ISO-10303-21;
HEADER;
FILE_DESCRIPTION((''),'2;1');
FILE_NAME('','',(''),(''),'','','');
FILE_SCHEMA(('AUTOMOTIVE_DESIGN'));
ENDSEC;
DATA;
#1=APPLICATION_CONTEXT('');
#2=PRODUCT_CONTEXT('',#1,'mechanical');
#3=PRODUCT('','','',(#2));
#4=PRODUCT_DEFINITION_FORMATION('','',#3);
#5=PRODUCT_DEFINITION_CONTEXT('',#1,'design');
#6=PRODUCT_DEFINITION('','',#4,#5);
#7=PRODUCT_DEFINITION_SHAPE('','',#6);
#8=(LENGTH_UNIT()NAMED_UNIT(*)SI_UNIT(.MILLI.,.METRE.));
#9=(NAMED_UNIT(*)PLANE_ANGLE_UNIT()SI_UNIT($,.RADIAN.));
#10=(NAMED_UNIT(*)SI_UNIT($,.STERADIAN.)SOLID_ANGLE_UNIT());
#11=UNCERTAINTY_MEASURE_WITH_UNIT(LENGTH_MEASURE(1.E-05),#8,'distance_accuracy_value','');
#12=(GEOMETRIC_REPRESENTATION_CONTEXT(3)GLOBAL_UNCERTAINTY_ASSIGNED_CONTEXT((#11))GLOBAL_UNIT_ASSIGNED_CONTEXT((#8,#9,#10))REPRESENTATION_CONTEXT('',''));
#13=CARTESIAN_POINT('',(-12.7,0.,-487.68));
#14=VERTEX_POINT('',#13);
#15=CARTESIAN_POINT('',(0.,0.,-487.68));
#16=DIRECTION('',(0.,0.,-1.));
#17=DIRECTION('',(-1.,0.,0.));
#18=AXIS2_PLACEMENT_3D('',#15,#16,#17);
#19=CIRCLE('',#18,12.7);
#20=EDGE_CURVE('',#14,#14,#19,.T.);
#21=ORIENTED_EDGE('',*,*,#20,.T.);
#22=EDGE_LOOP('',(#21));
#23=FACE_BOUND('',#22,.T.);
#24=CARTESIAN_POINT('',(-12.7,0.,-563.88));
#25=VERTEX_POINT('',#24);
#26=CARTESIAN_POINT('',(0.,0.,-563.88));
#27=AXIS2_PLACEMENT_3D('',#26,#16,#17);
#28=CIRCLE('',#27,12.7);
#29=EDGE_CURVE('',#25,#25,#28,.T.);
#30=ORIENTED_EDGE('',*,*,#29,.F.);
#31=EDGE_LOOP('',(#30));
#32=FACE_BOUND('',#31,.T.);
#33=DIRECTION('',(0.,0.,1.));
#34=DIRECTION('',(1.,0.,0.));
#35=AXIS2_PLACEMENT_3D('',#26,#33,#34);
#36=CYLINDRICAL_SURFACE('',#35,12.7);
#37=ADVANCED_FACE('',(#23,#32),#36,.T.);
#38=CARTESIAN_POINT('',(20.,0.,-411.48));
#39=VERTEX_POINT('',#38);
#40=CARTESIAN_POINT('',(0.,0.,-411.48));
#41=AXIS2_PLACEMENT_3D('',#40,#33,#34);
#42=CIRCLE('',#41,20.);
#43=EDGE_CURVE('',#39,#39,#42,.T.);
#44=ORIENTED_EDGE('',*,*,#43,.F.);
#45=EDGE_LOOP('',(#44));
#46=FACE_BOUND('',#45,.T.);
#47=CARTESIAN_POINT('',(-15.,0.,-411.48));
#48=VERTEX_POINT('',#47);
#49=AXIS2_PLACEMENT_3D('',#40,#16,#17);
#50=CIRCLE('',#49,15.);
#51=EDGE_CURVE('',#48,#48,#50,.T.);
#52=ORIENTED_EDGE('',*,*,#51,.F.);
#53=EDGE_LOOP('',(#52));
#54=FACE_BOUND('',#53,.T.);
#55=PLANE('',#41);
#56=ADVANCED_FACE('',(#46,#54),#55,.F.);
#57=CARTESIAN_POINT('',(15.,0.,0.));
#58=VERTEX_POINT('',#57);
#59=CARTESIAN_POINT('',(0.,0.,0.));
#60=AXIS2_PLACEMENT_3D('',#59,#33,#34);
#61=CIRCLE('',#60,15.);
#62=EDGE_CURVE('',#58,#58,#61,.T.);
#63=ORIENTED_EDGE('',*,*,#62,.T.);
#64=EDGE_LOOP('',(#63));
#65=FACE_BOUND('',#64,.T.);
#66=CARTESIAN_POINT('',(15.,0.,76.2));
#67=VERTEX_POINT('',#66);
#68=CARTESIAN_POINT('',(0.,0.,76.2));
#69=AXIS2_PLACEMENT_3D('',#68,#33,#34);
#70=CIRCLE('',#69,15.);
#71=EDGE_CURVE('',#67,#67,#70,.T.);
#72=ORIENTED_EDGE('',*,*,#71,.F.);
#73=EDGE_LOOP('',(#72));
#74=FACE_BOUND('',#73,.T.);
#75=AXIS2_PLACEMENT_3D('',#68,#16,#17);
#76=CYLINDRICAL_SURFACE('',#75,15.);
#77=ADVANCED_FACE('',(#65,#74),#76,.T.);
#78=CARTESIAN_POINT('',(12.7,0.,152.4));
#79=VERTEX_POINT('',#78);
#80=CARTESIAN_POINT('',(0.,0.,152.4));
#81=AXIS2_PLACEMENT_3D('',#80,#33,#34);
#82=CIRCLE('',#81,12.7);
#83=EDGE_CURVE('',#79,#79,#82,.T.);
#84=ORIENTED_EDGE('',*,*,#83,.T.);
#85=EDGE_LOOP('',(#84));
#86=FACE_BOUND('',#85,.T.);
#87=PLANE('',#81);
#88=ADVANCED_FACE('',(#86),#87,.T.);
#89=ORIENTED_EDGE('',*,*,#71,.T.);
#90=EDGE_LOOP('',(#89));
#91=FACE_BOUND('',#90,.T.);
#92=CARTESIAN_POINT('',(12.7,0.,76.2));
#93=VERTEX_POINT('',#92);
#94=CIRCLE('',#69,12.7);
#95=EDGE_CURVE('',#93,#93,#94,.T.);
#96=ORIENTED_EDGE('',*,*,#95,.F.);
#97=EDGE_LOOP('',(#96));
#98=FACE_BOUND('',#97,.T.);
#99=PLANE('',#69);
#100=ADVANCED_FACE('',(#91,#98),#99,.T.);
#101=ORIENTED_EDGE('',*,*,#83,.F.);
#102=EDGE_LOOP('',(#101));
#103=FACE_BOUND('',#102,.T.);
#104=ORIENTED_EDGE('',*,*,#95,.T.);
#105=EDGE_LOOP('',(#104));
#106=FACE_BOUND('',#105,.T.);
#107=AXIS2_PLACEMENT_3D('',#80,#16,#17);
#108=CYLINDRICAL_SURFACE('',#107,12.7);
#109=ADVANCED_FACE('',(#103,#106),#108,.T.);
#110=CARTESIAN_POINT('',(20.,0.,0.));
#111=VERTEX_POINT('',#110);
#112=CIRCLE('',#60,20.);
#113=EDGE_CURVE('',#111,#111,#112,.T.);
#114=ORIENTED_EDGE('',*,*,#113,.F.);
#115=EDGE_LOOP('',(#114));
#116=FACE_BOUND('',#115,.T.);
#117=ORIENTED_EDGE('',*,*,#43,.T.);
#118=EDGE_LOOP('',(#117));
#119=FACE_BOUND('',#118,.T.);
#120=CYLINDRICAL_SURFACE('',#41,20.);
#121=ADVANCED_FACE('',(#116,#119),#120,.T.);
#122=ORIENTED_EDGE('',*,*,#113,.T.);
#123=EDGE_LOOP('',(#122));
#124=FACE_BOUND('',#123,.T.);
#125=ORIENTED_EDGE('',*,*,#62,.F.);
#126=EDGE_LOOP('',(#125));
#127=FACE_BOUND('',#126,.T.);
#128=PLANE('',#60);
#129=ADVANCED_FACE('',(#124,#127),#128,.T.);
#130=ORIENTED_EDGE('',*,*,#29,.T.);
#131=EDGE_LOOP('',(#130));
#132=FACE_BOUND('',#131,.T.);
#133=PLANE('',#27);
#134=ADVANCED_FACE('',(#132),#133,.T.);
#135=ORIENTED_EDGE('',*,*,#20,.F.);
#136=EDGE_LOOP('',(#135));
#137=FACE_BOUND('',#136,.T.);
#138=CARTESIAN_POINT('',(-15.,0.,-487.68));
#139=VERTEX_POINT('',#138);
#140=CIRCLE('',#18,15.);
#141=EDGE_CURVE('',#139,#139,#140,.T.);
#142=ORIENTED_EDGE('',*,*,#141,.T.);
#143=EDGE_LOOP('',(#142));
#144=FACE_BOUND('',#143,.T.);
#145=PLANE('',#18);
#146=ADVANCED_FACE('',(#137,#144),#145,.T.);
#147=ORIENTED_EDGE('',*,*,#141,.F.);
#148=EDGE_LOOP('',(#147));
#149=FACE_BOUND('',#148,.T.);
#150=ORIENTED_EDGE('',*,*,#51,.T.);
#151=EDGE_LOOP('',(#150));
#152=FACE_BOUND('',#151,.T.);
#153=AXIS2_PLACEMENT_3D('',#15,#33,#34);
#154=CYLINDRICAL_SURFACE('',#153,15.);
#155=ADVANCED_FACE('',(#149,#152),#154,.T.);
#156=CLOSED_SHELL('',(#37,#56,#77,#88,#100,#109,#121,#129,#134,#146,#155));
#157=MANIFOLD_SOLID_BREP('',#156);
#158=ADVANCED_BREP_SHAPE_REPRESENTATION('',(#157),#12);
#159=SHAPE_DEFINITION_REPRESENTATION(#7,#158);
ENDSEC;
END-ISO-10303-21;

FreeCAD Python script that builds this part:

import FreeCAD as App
import Part
import Sketcher
Q = App.Units.Quantity

doc = App.newDocument("Part")
body = doc.addObject("PartDesign::Body", "Body")

sketch1 = doc.addObject("Sketcher::SketchObject", "Sketch")
body.addObject(sketch1)
sketch1.AttachmentSupport = (doc.XY_Plane, [""])
sketch1.MapMode = "FlatFace"
sketch1.addGeometry(Part.Circle(App.Vector(0, 0, 0), App.Vector(0, 0, 1), 20), False)
sketch1.addConstraint([
    Sketcher.Constraint("Coincident", 0, 3, -1, 1),
    Sketcher.Constraint("Diameter", 0, Q("40 mm")),
])
pad1 = doc.addObject("PartDesign::Pad", "Pad")
body.addObject(pad1)
pad1.Profile = sketch1
pad1.Length = Q("16.2 in")
pad1.Reversed = True

sketch2 = doc.addObject("Sketcher::SketchObject", "Sketch001")
body.addObject(sketch2)
sketch2.AttachmentSupport = (doc.XY_Plane, [""])
sketch2.MapMode = "FlatFace"
sketch2.addGeometry(Part.Circle(App.Vector(0, 0, 0), App.Vector(0, 0, 1), 15), False)
sketch2.addConstraint([
    Sketcher.Constraint("Coincident", 0, 3, -1, 1),
    Sketcher.Constraint("Diameter", 0, Q("30 mm")),
])
pad2 = doc.addObject("PartDesign::Pad", "Pad001")
body.addObject(pad2)
pad2.Profile = sketch2
pad2.Length = Q("3 in")

sketch3 = doc.addObject("Sketcher::SketchObject", "Sketch002")
body.addObject(sketch3)
sketch3.AttachmentSupport = (doc.XY_Plane, [""])
sketch3.MapMode = "FlatFace"
sketch3.AttachmentOffset = App.Placement(App.Vector(0, 0, -16.2 * 25.4), App.Rotation())
sketch3.addGeometry(Part.Circle(App.Vector(0, 0, 0), App.Vector(0, 0, 1), 15), False)
sketch3.addConstraint([
    Sketcher.Constraint("Coincident", 0, 3, -1, 1),
    Sketcher.Constraint("Diameter", 0, Q("30 mm")),
])
pad3 = doc.addObject("PartDesign::Pad", "Pad002")
body.addObject(pad3)
pad3.Profile = sketch3
pad3.Length = Q("3 in")
pad3.Reversed = True

sketch4 = doc.addObject("Sketcher::SketchObject", "Sketch003")
body.addObject(sketch4)
sketch4.AttachmentSupport = (doc.XY_Plane, [""])
sketch4.MapMode = "FlatFace"
sketch4.AttachmentOffset = App.Placement(App.Vector(0, 0, 3 * 25.4), App.Rotation())
sketch4.addGeometry(Part.Circle(App.Vector(0, 0, 0), App.Vector(0, 0, 1), 13), False)
sketch4.addConstraint([
    Sketcher.Constraint("Coincident", 0, 3, -1, 1),
    Sketcher.Constraint("Diameter", 0, Q("1 in")),
])
pad4 = doc.addObject("PartDesign::Pad", "Pad003")
body.addObject(pad4)
pad4.Profile = sketch4
pad4.Length = Q("3 in")

sketch5 = doc.addObject("Sketcher::SketchObject", "Sketch004")
body.addObject(sketch5)
sketch5.AttachmentSupport = (doc.XY_Plane, [""])
sketch5.MapMode = "FlatFace"
sketch5.AttachmentOffset = App.Placement(App.Vector(0, 0, -19.2 * 25.4), App.Rotation())
sketch5.addGeometry(Part.Circle(App.Vector(0, 0, 0), App.Vector(0, 0, 1), 13), False)
sketch5.addConstraint([
    Sketcher.Constraint("Coincident", 0, 3, -1, 1),
    Sketcher.Constraint("Diameter", 0, Q("1 in")),
])
pad5 = doc.addObject("PartDesign::Pad", "Pad004")
body.addObject(pad5)
pad5.Profile = sketch5
pad5.Length = Q("3 in")
pad5.Reversed = True

doc.recompute()
